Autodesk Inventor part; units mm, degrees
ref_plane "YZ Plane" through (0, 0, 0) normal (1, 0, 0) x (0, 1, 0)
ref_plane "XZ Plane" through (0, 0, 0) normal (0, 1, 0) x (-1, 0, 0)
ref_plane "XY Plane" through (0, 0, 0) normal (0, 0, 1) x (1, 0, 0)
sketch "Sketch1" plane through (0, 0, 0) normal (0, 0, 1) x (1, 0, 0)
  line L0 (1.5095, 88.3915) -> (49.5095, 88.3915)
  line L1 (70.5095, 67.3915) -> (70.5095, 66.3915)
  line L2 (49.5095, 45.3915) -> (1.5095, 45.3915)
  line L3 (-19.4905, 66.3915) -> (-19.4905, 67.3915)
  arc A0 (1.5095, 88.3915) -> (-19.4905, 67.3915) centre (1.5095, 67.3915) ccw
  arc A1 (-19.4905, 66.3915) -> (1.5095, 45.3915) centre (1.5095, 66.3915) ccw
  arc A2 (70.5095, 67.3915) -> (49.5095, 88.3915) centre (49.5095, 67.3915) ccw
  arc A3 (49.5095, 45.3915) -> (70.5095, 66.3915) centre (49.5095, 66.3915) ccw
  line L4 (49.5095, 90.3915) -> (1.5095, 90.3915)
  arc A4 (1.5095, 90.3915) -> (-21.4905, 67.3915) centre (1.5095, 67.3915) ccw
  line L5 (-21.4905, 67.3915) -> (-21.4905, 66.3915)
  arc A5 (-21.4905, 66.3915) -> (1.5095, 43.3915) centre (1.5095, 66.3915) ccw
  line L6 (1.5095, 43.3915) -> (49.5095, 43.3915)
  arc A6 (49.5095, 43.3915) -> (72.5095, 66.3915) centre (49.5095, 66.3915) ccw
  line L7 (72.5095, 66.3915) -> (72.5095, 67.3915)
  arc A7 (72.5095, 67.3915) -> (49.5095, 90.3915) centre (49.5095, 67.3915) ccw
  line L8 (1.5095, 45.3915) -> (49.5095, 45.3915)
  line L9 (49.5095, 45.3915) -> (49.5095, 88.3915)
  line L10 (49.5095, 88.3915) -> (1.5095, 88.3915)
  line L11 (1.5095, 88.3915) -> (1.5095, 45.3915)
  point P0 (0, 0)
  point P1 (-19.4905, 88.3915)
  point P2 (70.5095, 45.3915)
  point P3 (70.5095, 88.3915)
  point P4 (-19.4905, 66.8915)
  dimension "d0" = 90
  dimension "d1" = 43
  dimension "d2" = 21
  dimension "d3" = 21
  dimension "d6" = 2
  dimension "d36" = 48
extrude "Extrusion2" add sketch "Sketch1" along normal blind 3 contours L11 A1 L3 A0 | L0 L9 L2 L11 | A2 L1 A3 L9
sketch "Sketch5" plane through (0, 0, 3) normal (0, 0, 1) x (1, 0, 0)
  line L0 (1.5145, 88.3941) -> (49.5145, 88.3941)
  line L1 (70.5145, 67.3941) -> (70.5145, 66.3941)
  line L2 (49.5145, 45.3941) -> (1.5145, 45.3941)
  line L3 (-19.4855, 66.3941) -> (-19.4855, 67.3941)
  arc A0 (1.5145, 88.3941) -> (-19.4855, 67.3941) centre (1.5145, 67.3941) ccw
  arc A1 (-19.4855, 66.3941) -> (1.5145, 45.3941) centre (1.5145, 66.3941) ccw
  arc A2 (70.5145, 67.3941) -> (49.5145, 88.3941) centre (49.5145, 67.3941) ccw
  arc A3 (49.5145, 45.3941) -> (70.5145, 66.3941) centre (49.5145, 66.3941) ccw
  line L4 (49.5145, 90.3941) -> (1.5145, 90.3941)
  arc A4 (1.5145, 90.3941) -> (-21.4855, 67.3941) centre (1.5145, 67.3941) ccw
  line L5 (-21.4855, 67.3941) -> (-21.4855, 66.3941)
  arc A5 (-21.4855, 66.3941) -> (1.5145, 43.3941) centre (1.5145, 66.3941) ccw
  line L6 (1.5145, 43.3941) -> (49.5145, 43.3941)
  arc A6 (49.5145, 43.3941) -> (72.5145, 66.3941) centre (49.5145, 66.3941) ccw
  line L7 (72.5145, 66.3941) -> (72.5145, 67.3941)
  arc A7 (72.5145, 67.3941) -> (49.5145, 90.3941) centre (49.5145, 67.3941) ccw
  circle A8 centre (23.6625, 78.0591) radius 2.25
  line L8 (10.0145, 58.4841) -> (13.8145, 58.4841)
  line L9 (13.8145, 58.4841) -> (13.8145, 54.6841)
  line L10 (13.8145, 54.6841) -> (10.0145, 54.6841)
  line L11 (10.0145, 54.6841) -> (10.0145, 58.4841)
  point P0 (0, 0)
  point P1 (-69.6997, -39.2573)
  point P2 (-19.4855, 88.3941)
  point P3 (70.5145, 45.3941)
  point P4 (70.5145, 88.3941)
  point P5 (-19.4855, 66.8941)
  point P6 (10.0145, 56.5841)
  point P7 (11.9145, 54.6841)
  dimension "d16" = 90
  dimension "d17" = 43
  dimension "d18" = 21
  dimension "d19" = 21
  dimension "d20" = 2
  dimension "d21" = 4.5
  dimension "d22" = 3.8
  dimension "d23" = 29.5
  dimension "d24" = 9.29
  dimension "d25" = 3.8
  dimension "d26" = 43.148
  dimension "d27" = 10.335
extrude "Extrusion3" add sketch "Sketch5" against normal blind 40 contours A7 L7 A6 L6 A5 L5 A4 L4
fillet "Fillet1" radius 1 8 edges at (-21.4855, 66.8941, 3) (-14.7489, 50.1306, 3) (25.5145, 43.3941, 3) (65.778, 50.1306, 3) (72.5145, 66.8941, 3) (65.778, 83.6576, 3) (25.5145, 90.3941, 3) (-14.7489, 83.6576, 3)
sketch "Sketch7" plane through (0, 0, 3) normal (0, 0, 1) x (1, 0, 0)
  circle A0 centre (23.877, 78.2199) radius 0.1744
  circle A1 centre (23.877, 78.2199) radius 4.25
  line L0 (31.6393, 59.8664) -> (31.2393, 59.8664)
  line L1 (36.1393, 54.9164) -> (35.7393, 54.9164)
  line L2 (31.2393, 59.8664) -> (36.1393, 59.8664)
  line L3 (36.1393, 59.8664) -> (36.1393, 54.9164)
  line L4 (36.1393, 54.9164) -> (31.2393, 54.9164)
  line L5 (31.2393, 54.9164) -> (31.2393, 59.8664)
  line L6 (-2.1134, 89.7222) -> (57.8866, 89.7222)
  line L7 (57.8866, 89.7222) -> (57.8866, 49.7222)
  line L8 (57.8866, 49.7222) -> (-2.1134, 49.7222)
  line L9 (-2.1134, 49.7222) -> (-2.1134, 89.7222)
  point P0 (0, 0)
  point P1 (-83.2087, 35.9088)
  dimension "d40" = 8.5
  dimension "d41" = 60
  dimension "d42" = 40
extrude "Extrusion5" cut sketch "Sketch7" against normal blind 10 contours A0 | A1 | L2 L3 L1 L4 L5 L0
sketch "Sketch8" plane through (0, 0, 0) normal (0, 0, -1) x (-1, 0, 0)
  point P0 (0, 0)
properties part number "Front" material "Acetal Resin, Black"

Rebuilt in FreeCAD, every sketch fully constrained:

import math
import FreeCAD as App
import Part
import Sketcher
from FreeCAD import Vector


def edges_at(feature, points):
    """Names of the edges that pass closest to the given points."""
    edges = feature.Shape.Edges
    near = lambda p: min(range(len(edges)), key=lambda i: edges[i].distToShape(Part.Vertex(*p))[0])
    return sorted({f"Edge{near(p) + 1}" for p in points})

doc = App.newDocument("Part")
body = doc.addObject("PartDesign::Body", "Body")

# Sketch on XY plane
sketch1 = body.newObject("Sketcher::SketchObject", "Sketch")
sketch1.AttachmentSupport = (doc.getObject("XY_Plane"), [""])
sketch1.MapMode = "FlatFace"
sketch1.addGeometry(Part.ArcOfCircle(Part.Circle(Vector(1.5, 66.4, 0), Vector(0, 0, 1), 21), math.radians(180), math.radians(270)), False)
sketch1.addGeometry(Part.LineSegment(Vector(1.5, 45.4, 0), Vector(49.5, 45.4, 0)), False)
sketch1.addGeometry(Part.ArcOfCircle(Part.Circle(Vector(49.5, 66.4, 0), Vector(0, 0, 1), 21), math.radians(-90), math.radians(0)), False)
sketch1.addGeometry(Part.LineSegment(Vector(70.5, 66.4, 0), Vector(70.5, 67.4, 0)), False)
sketch1.addGeometry(Part.ArcOfCircle(Part.Circle(Vector(49.5, 67.4, 0), Vector(0, 0, 1), 21), math.radians(0), math.radians(90)), False)
sketch1.addGeometry(Part.LineSegment(Vector(49.5, 88.4, 0), Vector(1.5, 88.4, 0)), False)
sketch1.addGeometry(Part.ArcOfCircle(Part.Circle(Vector(1.5, 67.4, 0), Vector(0, 0, 1), 21), math.radians(90), math.radians(180)), False)
sketch1.addGeometry(Part.LineSegment(Vector(-19.5, 67.4, 0), Vector(-19.5, 66.4, 0)), False)
sketch1.addConstraint(Sketcher.Constraint("Tangent", 0, 2, 1, 1))
sketch1.addConstraint(Sketcher.Constraint("Tangent", 1, 2, 2, 1))
sketch1.addConstraint(Sketcher.Constraint("Tangent", 2, 2, 3, 1))
sketch1.addConstraint(Sketcher.Constraint("Tangent", 3, 2, 4, 1))
sketch1.addConstraint(Sketcher.Constraint("Tangent", 4, 2, 5, 1))
sketch1.addConstraint(Sketcher.Constraint("Tangent", 5, 2, 6, 1))
sketch1.addConstraint(Sketcher.Constraint("Tangent", 6, 2, 7, 1))
sketch1.addConstraint(Sketcher.Constraint("Tangent", 7, 2, 0, 1))
sketch1.addConstraint(Sketcher.Constraint("Horizontal", 1))
sketch1.addConstraint(Sketcher.Constraint("Vertical", 3))
sketch1.addConstraint(Sketcher.Constraint("Horizontal", 5))
sketch1.addConstraint(Sketcher.Constraint("Vertical", 7))
sketch1.addConstraint(Sketcher.Constraint("Equal", 0, 2))
sketch1.addConstraint(Sketcher.Constraint("Equal", 2, 4))
sketch1.addConstraint(Sketcher.Constraint("Equal", 4, 6))
sketch1.addConstraint(Sketcher.Constraint("Radius", 0, 21.0))
sketch1.addConstraint(Sketcher.Constraint("DistanceX", 1, 1, 1, 2, 48.0))
sketch1.addConstraint(Sketcher.Constraint("DistanceY", 1, 2, 4, 2, 43.0))
sketch1.addConstraint(Sketcher.Constraint("DistanceX", -1, 1, 0, 3, 1.5095))
sketch1.addConstraint(Sketcher.Constraint("DistanceY", -1, 1, 0, 3, 66.3915))
pad1 = body.newObject("PartDesign::Pad", "Pad")
pad1.Profile = sketch1
pad1.Length = 3

# Sketch on XY plane
sketch2 = body.newObject("Sketcher::SketchObject", "Sketch001")
sketch2.AttachmentSupport = (doc.getObject("XY_Plane"), [""])
sketch2.MapMode = "FlatFace"
sketch2.AttachmentOffset = App.Placement(Vector(0, 0, 3), App.Rotation())
sketch2.addGeometry(Part.ArcOfCircle(Part.Circle(Vector(49.5, 67.4, 0), Vector(0, 0, 1), 23), math.radians(0), math.radians(90)), False)
sketch2.addGeometry(Part.LineSegment(Vector(49.5, 90.4, 0), Vector(1.5, 90.4, 0)), False)
sketch2.addGeometry(Part.ArcOfCircle(Part.Circle(Vector(1.5, 67.4, 0), Vector(0, 0, 1), 23), math.radians(90), math.radians(180)), False)
sketch2.addGeometry(Part.LineSegment(Vector(-21.5, 67.4, 0), Vector(-21.5, 66.4, 0)), False)
sketch2.addGeometry(Part.ArcOfCircle(Part.Circle(Vector(1.5, 66.4, 0), Vector(0, 0, 1), 23), math.radians(180), math.radians(270)), False)
sketch2.addGeometry(Part.LineSegment(Vector(1.5, 43.4, 0), Vector(49.5, 43.4, 0)), False)
sketch2.addGeometry(Part.ArcOfCircle(Part.Circle(Vector(49.5, 66.4, 0), Vector(0, 0, 1), 23), math.radians(-90), math.radians(0)), False)
sketch2.addGeometry(Part.LineSegment(Vector(72.5, 66.4, 0), Vector(72.5, 67.4, 0)), False)
sketch2.addGeometry(Part.ArcOfCircle(Part.Circle(Vector(1.5, 67.4, 0), Vector(0, 0, 1), 21), math.radians(90), math.radians(180)), False)
sketch2.addGeometry(Part.LineSegment(Vector(1.5, 88.4, 0), Vector(49.5, 88.4, 0)), False)
sketch2.addGeometry(Part.ArcOfCircle(Part.Circle(Vector(49.5, 67.4, 0), Vector(0, 0, 1), 21), math.radians(0), math.radians(90)), False)
sketch2.addGeometry(Part.LineSegment(Vector(70.5, 67.4, 0), Vector(70.5, 66.4, 0)), False)
sketch2.addGeometry(Part.ArcOfCircle(Part.Circle(Vector(49.5, 66.4, 0), Vector(0, 0, 1), 21), math.radians(-90), math.radians(0)), False)
sketch2.addGeometry(Part.LineSegment(Vector(49.5, 45.4, 0), Vector(1.5, 45.4, 0)), False)
sketch2.addGeometry(Part.ArcOfCircle(Part.Circle(Vector(1.5, 66.4, 0), Vector(0, 0, 1), 21), math.radians(180), math.radians(270)), False)
sketch2.addGeometry(Part.LineSegment(Vector(-19.5, 66.4, 0), Vector(-19.5, 67.4, 0)), False)
sketch2.addConstraint(Sketcher.Constraint("Tangent", 0, 2, 1, 1))
sketch2.addConstraint(Sketcher.Constraint("Tangent", 1, 2, 2, 1))
sketch2.addConstraint(Sketcher.Constraint("Tangent", 2, 2, 3, 1))
sketch2.addConstraint(Sketcher.Constraint("Tangent", 3, 2, 4, 1))
sketch2.addConstraint(Sketcher.Constraint("Tangent", 4, 2, 5, 1))
sketch2.addConstraint(Sketcher.Constraint("Tangent", 5, 2, 6, 1))
sketch2.addConstraint(Sketcher.Constraint("Tangent", 6, 2, 7, 1))
sketch2.addConstraint(Sketcher.Constraint("Tangent", 7, 2, 0, 1))
sketch2.addConstraint(Sketcher.Constraint("Tangent", 8, 1, 9, 1))
sketch2.addConstraint(Sketcher.Constraint("Tangent", 9, 2, 10, 2))
sketch2.addConstraint(Sketcher.Constraint("Tangent", 10, 1, 11, 1))
sketch2.addConstraint(Sketcher.Constraint("Tangent", 11, 2, 12, 2))
sketch2.addConstraint(Sketcher.Constraint("Tangent", 12, 1, 13, 1))
sketch2.addConstraint(Sketcher.Constraint("Tangent", 13, 2, 14, 2))
sketch2.addConstraint(Sketcher.Constraint("Tangent", 14, 1, 15, 1))
sketch2.addConstraint(Sketcher.Constraint("Tangent", 15, 2, 8, 2))
sketch2.addConstraint(Sketcher.Constraint("Horizontal", 1))
sketch2.addConstraint(Sketcher.Constraint("Vertical", 3))
sketch2.addConstraint(Sketcher.Constraint("Horizontal", 5))
sketch2.addConstraint(Sketcher.Constraint("Vertical", 7))
sketch2.addConstraint(Sketcher.Constraint("Horizontal", 9))
sketch2.addConstraint(Sketcher.Constraint("Vertical", 11))
sketch2.addConstraint(Sketcher.Constraint("Horizontal", 13))
sketch2.addConstraint(Sketcher.Constraint("Vertical", 15))
sketch2.addConstraint(Sketcher.Constraint("Coincident", 8, 3, 2, 3))
sketch2.addConstraint(Sketcher.Constraint("Coincident", 10, 3, 0, 3))
sketch2.addConstraint(Sketcher.Constraint("Coincident", 12, 3, 6, 3))
sketch2.addConstraint(Sketcher.Constraint("Equal", 0, 2))
sketch2.addConstraint(Sketcher.Constraint("Equal", 2, 4))
sketch2.addConstraint(Sketcher.Constraint("Equal", 4, 6))
sketch2.addConstraint(Sketcher.Constraint("Equal", 12, 14))
sketch2.addConstraint(Sketcher.Constraint("Radius", 8, 21.0))
sketch2.addConstraint(Sketcher.Constraint("Radius", 0, 23.0))
sketch2.addConstraint(Sketcher.Constraint("DistanceX", 1, 2, 1, 1, 48.0))
sketch2.addConstraint(Sketcher.Constraint("DistanceY", 3, 2, 3, 1, 1.0))
sketch2.addConstraint(Sketcher.Constraint("DistanceY", -1, 1, 0, 3, 67.394))
sketch2.addConstraint(Sketcher.Constraint("DistanceX", -1, 1, 0, 3, 49.5145))
pad2 = body.newObject("PartDesign::Pad", "Pad001")
pad2.Profile = sketch2
pad2.Length = 40
pad2.Reversed = True
doc.recompute()

fillet = body.newObject("PartDesign::Fillet", "Fillet")
fillet.Base = (pad2, edges_at(pad2, [
    (-21.485, 66.894, 3),
    (-14.749, 50.131, 3),
    (25.515, 43.394, 3),
    (65.778, 50.131, 3),
    (72.514, 66.894, 3),
    (65.778, 83.658, 3),
    (25.515, 90.394, 3),
    (-14.749, 83.658, 3),
]))
fillet.Radius = 1

# Sketch on XY plane
sketch3 = body.newObject("Sketcher::SketchObject", "Sketch002")
sketch3.AttachmentSupport = (doc.getObject("XY_Plane"), [""])
sketch3.MapMode = "FlatFace"
sketch3.AttachmentOffset = App.Placement(Vector(0, 0, 3), App.Rotation())
sketch3.addGeometry(Part.Circle(Vector(23.9, 78.2, 0), Vector(0, 0, 1), 4.2), False)
sketch3.addGeometry(Part.LineSegment(Vector(36.1, 59.9, 0), Vector(31.2, 59.9, 0)), False)
sketch3.addGeometry(Part.LineSegment(Vector(31.2, 59.9, 0), Vector(31.2, 54.9, 0)), False)
sketch3.addGeometry(Part.LineSegment(Vector(31.2, 54.9, 0), Vector(36.1, 54.9, 0)), False)
sketch3.addGeometry(Part.LineSegment(Vector(36.1, 54.9, 0), Vector(36.1, 59.9, 0)), False)
sketch3.addConstraint(Sketcher.Constraint("Coincident", 1, 2, 2, 1))
sketch3.addConstraint(Sketcher.Constraint("Coincident", 2, 2, 3, 1))
sketch3.addConstraint(Sketcher.Constraint("Coincident", 3, 2, 4, 1))
sketch3.addConstraint(Sketcher.Constraint("Coincident", 4, 2, 1, 1))
sketch3.addConstraint(Sketcher.Constraint("Horizontal", 1))
sketch3.addConstraint(Sketcher.Constraint("Vertical", 2))
sketch3.addConstraint(Sketcher.Constraint("Horizontal", 3))
sketch3.addConstraint(Sketcher.Constraint("Vertical", 4))
sketch3.addConstraint(Sketcher.Constraint("Diameter", 0, 8.5))
sketch3.addConstraint(Sketcher.Constraint("DistanceX", 1, 2, 1, 1, 4.9))
sketch3.addConstraint(Sketcher.Constraint("DistanceY", 2, 2, 2, 1, 4.95))
sketch3.addConstraint(Sketcher.Constraint("DistanceY", -1, 1, 0, 3, 78.22))
sketch3.addConstraint(Sketcher.Constraint("DistanceX", -1, 1, 0, 3, 23.877))
sketch3.addConstraint(Sketcher.Constraint("DistanceX", -1, 1, 1, 2, 31.2393))
sketch3.addConstraint(Sketcher.Constraint("DistanceY", -1, 1, 1, 2, 59.8664))
pocket1 = body.newObject("PartDesign::Pocket", "Pocket")
pocket1.Profile = sketch3
pocket1.Length = 10

doc.recompute()
